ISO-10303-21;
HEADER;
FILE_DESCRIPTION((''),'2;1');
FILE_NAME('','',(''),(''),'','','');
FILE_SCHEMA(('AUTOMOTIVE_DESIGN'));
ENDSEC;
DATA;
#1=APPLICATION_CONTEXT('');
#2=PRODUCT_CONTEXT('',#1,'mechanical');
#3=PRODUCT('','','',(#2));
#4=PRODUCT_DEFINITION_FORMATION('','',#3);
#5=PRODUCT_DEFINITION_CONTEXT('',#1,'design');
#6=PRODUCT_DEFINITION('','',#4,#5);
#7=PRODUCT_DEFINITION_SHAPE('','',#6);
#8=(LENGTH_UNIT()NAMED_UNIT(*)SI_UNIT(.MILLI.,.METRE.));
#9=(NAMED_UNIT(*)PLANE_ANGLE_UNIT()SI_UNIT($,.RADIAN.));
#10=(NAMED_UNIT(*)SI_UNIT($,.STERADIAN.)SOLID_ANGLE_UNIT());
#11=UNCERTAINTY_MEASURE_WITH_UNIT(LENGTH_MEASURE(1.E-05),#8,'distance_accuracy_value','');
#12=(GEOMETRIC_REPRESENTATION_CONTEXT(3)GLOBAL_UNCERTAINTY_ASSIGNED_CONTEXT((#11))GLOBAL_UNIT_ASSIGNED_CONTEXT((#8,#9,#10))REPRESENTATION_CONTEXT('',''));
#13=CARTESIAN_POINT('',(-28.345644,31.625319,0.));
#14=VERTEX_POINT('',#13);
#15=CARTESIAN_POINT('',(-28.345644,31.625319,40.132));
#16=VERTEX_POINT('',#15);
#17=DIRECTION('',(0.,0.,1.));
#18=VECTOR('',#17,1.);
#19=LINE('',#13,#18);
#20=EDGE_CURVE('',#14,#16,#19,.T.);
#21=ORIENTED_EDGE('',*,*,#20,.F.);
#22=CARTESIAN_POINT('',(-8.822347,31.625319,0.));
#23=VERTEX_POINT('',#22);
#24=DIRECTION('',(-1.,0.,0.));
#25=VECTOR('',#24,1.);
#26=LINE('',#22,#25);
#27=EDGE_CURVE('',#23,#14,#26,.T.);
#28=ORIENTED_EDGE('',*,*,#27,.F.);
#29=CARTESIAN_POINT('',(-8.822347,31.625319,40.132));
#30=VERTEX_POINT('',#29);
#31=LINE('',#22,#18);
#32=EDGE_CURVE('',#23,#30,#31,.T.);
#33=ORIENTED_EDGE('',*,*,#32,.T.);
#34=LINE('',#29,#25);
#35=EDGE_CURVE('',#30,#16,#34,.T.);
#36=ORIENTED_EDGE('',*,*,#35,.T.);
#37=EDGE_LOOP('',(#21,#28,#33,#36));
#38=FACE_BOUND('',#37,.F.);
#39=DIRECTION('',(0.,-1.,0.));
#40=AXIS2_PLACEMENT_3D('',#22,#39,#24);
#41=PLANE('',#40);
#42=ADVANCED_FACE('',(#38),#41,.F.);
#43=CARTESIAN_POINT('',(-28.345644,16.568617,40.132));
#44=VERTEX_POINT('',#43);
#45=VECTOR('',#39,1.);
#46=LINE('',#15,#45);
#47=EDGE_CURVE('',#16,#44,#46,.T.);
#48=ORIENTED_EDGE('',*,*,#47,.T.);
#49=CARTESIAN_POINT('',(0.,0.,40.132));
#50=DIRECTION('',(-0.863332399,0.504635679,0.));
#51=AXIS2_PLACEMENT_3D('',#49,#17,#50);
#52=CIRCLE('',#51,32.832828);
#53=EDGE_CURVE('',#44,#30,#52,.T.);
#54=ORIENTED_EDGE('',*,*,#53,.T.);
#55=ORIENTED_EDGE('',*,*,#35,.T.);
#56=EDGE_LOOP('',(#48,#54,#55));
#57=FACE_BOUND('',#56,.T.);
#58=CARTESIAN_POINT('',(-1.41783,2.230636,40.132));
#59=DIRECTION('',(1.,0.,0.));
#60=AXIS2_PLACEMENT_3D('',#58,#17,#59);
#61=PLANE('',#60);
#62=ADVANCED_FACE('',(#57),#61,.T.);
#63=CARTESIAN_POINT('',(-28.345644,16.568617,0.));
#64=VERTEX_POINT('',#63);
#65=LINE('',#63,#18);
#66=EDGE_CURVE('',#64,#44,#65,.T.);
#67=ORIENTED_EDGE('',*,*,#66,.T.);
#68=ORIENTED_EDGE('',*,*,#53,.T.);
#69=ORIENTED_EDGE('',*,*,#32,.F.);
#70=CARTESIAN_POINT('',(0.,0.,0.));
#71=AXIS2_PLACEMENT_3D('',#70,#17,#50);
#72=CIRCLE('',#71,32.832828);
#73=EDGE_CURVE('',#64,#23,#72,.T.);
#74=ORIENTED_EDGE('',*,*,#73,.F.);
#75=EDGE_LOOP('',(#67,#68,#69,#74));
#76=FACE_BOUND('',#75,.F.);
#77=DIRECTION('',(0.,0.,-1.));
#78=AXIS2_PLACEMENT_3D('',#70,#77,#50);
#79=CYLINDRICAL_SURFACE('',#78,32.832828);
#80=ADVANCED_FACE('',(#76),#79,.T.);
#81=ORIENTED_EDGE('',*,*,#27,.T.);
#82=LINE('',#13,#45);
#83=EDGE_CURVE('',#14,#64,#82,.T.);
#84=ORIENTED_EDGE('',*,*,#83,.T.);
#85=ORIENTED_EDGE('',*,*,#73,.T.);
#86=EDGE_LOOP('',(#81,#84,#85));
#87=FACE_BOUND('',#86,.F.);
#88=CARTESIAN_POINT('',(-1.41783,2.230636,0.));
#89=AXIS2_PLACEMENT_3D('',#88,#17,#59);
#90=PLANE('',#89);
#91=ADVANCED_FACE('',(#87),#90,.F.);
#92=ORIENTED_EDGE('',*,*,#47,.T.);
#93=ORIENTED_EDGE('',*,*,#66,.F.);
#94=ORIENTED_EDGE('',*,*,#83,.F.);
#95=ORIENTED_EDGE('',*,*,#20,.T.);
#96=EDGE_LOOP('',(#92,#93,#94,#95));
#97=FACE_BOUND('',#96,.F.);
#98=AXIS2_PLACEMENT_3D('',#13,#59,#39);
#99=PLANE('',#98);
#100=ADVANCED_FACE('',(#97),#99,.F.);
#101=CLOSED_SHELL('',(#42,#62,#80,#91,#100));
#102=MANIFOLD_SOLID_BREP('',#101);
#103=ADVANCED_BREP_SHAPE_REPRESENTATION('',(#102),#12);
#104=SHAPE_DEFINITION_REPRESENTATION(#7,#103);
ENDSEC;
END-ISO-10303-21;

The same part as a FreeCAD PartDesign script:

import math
import FreeCAD as App
import Part
import Sketcher
Q = App.Units.Quantity

doc = App.newDocument("Part")
body = doc.addObject("PartDesign::Body", "Body")

# Sketch on XY plane
sketch1 = body.newObject("Sketcher::SketchObject", "Sketch")
sketch1.AttachmentSupport = (doc.getObject("XY_Plane"), [""])
sketch1.MapMode = "FlatFace"
sketch1.addGeometry(Part.LineSegment(App.Vector(-9, 32, 0), App.Vector(-28, 32, 0)), False)
sketch1.addGeometry(Part.LineSegment(App.Vector(-28, 32, 0), App.Vector(-28, 17, 0)), False)
sketch1.addGeometry(Part.ArcOfCircle(Part.Circle(App.Vector(0, 0, 0), App.Vector(0, 0, 1), 33), math.radians(150), math.radians(466)), False)
sketch1.addConstraint(Sketcher.Constraint("Coincident", 0, 2, 1, 1))
sketch1.addConstraint(Sketcher.Constraint("Coincident", 1, 2, 2, 1))
sketch1.addConstraint(Sketcher.Constraint("Coincident", 2, 2, 0, 1))
sketch1.addConstraint(Sketcher.Constraint("Horizontal", 0))
sketch1.addConstraint(Sketcher.Constraint("Vertical", 1))
sketch1.addConstraint(Sketcher.Constraint("Coincident", 2, 3, -1, 1))
sketch1.addConstraint(Sketcher.Constraint("Radius", 2, Q("32.832828 mm")))
sketch1.addConstraint(Sketcher.Constraint("DistanceX", 0, 2, 0, 1, Q("19.523298 mm")))
sketch1.addConstraint(Sketcher.Constraint("DistanceY", 1, 2, 1, 1, Q("15.056703 mm")))
pad1 = body.newObject("PartDesign::Pad", "Pad")
pad1.Profile = sketch1
pad1.Length = Q("1.58 in")

doc.recompute()
